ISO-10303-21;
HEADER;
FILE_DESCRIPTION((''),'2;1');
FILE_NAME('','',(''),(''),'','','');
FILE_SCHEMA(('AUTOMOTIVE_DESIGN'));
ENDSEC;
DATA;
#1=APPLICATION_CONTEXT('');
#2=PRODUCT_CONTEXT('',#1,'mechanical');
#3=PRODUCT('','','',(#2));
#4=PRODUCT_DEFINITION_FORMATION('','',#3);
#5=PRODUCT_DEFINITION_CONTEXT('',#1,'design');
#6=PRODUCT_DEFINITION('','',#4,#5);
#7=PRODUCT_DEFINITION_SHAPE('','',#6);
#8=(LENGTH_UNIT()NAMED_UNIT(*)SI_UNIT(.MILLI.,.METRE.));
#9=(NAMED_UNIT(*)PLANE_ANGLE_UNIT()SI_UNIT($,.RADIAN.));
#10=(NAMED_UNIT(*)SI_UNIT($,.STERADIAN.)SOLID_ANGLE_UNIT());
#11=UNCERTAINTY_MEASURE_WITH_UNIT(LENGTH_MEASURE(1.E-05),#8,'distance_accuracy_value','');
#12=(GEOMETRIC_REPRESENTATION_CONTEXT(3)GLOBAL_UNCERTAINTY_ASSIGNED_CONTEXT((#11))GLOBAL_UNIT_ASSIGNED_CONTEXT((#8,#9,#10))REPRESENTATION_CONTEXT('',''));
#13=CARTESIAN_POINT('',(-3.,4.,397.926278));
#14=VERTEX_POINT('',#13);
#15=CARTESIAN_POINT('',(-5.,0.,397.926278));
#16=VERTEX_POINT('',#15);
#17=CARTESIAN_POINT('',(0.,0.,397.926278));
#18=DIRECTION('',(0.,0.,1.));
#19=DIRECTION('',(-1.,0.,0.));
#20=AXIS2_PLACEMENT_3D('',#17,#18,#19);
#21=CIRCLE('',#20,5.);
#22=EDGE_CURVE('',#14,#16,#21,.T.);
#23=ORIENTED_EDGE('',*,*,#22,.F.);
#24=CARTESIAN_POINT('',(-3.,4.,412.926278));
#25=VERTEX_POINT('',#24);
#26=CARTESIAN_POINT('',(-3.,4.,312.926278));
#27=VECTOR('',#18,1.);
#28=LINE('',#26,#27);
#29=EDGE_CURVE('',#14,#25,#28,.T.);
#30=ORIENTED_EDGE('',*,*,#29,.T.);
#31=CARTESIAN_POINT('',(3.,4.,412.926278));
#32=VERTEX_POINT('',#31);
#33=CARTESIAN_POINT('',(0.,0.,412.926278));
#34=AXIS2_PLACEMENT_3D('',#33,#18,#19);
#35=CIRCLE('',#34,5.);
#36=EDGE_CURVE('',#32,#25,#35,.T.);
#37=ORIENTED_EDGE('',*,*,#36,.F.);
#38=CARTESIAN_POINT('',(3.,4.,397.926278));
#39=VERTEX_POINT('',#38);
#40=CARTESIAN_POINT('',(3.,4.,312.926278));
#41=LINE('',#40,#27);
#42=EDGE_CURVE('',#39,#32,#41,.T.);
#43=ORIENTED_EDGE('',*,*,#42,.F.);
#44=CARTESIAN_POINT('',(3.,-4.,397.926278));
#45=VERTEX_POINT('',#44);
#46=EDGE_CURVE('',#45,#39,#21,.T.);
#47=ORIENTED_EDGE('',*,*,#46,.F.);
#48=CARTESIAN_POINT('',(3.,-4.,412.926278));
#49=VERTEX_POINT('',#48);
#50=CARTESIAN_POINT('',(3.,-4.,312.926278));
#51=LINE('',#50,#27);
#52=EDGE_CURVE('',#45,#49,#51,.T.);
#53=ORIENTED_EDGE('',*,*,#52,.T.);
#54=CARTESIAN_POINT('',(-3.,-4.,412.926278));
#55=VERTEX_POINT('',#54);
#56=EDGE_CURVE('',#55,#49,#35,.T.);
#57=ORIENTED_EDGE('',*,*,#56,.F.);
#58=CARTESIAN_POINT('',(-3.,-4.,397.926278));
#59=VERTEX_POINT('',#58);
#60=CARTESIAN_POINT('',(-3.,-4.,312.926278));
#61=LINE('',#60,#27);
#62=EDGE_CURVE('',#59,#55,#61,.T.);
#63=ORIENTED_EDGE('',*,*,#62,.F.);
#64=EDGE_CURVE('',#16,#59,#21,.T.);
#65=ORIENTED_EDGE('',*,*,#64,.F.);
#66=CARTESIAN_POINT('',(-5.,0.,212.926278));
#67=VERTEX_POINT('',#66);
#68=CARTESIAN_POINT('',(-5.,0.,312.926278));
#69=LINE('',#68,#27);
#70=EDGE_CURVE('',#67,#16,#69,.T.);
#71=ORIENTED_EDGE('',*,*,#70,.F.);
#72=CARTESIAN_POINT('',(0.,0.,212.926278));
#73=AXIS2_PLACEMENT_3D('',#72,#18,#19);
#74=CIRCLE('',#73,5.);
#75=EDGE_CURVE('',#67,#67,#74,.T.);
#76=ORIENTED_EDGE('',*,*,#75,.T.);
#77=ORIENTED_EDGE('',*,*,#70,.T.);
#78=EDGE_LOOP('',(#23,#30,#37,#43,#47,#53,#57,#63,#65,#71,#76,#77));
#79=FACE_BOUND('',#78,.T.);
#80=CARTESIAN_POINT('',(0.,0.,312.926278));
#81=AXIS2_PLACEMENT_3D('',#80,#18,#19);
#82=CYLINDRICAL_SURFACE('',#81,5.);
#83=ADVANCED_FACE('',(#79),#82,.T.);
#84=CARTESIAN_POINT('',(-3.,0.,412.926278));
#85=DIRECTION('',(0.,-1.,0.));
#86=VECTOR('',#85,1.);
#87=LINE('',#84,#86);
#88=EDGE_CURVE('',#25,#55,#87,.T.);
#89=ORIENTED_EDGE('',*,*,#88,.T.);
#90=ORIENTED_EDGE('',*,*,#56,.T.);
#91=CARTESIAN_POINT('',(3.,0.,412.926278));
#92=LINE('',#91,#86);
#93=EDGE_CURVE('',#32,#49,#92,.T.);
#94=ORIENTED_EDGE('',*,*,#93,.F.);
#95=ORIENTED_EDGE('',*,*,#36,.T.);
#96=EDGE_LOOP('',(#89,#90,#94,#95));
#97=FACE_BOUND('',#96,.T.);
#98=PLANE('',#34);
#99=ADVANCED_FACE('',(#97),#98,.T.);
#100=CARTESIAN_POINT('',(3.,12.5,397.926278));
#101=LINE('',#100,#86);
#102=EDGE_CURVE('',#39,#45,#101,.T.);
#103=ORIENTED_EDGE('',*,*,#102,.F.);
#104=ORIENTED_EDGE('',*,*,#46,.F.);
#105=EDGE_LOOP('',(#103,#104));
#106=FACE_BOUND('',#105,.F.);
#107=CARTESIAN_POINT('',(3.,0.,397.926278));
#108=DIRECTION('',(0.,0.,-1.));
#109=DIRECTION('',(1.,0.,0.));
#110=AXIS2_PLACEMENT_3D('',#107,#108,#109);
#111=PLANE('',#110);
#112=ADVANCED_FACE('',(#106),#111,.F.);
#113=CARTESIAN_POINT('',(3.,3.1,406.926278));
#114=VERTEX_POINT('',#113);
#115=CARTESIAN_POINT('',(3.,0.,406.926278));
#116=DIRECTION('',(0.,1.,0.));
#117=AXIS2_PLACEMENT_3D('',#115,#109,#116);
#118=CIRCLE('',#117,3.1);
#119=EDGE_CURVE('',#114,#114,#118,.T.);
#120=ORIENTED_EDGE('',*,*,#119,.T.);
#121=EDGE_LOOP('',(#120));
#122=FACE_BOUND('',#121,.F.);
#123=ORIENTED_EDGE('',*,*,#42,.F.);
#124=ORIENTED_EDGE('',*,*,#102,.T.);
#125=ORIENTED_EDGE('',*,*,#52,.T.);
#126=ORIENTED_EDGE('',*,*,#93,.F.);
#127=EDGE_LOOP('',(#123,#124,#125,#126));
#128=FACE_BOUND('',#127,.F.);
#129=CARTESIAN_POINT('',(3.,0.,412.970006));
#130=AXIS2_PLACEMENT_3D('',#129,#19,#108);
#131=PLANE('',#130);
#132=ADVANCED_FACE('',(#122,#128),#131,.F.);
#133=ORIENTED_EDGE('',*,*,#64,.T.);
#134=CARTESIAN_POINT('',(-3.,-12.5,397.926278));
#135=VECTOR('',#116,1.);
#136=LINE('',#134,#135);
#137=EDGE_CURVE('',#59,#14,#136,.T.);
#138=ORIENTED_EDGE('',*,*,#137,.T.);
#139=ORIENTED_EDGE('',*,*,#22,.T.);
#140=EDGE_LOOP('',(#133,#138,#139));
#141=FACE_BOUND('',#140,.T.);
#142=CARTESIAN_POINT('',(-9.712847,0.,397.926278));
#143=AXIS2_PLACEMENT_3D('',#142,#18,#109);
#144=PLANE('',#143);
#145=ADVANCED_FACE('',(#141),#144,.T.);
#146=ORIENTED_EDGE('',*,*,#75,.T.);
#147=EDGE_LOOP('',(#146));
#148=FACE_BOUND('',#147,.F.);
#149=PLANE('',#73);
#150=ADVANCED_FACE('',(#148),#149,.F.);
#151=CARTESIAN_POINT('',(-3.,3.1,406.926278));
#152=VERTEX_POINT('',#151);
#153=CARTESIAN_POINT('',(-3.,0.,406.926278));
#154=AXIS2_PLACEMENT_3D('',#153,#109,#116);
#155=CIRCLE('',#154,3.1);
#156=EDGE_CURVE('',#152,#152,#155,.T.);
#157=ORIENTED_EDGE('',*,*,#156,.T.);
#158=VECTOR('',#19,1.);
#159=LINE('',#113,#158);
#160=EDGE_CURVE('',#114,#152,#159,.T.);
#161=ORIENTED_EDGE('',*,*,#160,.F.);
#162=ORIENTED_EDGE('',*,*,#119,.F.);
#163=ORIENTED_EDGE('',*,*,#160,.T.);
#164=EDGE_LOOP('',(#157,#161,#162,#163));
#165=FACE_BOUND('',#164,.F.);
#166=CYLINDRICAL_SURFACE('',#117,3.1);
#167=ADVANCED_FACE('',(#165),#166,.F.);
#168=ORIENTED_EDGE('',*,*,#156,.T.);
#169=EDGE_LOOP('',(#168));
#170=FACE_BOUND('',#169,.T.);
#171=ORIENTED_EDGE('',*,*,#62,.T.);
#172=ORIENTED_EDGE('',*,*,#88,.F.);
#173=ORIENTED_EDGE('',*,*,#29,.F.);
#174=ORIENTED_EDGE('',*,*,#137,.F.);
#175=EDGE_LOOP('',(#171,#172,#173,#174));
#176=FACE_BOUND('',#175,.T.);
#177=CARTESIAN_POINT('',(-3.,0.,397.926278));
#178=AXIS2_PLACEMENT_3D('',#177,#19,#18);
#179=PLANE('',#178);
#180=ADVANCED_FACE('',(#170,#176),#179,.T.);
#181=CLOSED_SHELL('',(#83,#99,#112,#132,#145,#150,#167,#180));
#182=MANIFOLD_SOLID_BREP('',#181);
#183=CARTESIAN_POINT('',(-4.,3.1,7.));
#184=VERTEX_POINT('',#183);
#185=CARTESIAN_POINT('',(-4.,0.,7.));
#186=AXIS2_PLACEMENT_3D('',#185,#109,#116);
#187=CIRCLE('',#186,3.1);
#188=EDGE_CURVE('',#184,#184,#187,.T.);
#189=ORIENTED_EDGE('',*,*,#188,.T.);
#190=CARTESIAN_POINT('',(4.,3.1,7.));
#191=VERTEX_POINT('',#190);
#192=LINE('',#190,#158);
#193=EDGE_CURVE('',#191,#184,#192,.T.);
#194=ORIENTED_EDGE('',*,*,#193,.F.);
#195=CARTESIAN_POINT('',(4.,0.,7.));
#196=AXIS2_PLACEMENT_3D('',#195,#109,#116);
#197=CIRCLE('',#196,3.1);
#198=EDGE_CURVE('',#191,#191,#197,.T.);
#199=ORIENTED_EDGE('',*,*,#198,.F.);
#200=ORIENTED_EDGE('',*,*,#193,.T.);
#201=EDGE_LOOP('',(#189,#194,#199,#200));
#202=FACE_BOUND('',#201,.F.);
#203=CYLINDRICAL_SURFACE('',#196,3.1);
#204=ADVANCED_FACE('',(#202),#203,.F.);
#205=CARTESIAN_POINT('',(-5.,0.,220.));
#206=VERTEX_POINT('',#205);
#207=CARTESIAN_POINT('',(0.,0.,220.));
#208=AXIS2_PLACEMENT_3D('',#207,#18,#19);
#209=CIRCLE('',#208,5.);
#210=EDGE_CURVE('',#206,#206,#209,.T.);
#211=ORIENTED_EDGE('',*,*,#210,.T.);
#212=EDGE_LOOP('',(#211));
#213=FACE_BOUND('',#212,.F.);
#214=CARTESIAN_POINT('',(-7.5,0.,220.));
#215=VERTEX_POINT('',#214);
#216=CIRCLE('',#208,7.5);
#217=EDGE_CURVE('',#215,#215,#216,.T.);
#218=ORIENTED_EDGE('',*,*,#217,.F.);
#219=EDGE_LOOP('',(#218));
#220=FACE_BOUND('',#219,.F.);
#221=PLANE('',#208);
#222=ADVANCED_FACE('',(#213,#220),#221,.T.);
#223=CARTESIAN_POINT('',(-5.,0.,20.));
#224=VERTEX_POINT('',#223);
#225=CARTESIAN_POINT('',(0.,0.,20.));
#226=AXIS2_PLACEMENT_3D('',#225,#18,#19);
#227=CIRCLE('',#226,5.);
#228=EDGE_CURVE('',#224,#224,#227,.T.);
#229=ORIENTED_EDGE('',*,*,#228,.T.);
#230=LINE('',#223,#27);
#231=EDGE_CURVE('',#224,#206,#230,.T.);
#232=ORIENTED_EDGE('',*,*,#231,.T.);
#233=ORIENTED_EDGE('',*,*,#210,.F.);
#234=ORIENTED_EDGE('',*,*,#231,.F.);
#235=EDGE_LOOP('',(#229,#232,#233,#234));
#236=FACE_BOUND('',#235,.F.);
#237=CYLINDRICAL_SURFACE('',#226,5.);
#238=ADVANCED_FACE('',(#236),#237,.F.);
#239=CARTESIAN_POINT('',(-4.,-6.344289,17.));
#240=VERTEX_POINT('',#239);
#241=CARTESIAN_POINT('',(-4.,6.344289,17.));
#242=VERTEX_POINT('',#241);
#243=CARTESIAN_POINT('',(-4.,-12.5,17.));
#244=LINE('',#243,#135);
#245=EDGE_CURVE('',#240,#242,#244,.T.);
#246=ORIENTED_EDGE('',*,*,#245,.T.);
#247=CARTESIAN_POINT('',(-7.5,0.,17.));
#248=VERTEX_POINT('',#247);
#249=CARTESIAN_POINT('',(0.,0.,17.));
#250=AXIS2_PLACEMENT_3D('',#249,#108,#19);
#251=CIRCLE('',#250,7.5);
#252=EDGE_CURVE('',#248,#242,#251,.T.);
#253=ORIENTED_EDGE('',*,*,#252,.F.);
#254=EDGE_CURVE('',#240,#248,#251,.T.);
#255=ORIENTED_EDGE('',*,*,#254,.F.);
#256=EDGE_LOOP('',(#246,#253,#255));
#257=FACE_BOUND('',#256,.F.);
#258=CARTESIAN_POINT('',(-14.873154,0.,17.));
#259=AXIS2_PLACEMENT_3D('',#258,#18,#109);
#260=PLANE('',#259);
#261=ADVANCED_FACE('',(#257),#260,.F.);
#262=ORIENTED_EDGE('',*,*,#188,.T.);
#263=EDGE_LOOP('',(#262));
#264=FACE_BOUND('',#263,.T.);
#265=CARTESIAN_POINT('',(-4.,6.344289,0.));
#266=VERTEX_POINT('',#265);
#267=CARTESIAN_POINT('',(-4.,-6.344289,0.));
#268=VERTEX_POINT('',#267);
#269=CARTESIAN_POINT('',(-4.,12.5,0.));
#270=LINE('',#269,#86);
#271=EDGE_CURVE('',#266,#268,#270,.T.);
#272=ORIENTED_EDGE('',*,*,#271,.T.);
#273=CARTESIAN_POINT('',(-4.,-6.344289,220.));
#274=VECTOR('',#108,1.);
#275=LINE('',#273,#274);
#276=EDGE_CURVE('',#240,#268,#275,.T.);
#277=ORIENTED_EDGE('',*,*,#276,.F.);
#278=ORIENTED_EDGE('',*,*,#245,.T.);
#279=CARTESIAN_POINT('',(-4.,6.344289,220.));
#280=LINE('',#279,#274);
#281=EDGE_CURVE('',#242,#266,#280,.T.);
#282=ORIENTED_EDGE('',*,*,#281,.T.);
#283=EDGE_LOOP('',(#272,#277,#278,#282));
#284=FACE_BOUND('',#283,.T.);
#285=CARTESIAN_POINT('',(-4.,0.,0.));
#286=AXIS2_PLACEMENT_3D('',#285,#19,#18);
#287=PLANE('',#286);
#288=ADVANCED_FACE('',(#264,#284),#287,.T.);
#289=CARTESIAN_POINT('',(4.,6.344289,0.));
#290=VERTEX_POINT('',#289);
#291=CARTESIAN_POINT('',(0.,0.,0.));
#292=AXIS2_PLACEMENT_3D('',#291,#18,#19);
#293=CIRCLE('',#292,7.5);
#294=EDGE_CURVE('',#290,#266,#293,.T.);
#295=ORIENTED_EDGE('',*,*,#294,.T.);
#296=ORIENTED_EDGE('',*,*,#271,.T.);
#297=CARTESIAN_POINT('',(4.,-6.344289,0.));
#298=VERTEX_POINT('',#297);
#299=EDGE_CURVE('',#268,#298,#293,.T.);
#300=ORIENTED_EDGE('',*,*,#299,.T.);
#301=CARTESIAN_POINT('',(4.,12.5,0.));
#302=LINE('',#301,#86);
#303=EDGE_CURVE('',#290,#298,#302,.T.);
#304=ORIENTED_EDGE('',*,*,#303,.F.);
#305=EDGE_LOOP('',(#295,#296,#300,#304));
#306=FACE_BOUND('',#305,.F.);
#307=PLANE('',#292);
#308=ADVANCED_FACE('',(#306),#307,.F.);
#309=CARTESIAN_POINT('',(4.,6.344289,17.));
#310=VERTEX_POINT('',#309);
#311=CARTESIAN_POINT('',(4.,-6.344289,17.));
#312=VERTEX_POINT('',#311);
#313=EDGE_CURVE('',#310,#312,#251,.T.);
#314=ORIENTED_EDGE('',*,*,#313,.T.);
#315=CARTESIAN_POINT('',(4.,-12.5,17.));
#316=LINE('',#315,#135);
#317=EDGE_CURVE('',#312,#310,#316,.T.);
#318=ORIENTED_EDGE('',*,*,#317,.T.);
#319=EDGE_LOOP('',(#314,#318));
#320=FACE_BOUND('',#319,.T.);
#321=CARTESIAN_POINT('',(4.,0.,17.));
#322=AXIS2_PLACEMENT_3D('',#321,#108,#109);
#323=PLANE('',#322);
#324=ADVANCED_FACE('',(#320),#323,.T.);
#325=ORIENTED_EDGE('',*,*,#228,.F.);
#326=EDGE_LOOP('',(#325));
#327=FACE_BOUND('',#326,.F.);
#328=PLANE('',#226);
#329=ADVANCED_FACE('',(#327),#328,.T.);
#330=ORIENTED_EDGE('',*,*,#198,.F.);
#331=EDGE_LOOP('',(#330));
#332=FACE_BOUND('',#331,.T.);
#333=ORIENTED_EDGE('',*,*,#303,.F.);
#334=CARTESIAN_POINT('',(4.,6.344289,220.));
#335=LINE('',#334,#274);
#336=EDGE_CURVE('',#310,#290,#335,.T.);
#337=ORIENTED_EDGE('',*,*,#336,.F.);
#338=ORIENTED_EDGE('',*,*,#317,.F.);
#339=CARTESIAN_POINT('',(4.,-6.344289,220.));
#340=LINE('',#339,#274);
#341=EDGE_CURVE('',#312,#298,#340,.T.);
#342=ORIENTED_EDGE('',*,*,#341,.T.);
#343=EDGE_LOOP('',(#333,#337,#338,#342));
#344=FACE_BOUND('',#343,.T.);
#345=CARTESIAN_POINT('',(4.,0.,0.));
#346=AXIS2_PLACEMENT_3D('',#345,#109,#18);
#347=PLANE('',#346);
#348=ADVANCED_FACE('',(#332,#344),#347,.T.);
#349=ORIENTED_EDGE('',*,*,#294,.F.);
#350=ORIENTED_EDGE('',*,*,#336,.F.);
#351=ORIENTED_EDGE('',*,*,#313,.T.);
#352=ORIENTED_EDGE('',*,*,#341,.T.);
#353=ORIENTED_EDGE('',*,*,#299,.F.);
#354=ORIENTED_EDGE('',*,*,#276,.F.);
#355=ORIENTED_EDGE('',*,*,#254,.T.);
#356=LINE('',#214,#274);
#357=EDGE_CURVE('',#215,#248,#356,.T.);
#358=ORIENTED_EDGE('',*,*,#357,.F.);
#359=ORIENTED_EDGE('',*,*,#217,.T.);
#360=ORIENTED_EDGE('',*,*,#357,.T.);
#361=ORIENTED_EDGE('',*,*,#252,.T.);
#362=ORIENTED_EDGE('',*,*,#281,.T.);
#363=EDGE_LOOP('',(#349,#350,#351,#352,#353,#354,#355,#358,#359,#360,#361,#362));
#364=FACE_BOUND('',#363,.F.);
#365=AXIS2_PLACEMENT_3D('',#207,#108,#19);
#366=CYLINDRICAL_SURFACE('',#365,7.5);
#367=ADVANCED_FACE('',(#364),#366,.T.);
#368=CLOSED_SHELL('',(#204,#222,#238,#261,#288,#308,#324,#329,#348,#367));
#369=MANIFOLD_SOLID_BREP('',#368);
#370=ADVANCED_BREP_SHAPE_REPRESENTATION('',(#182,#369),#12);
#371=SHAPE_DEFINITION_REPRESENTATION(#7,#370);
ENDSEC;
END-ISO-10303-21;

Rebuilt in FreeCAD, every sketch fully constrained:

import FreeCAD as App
import Part
import Sketcher
from FreeCAD import Vector
Q = App.Units.Quantity


def add_polygon(sketch, points):
    """Adds a closed chain of lines whose ends are joined by coincident constraints."""
    first, n = sketch.GeometryCount, len(points)
    for a, b in zip(points, points[1:] + points[:1]):
        sketch.addGeometry(Part.LineSegment(App.Vector(*a, 0), App.Vector(*b, 0)), False)
    for i in range(n):
        sketch.addConstraint(Sketcher.Constraint("Coincident", first + i, 2, first + (i + 1) % n, 1))

doc = App.newDocument("Part")
params = doc.addObject("Spreadsheet::Sheet", "Params")
for row, (alias, value) in enumerate([
    ("sketch1_width", "5 mm"),
    ("sketch1_height", "20 mm"),
    ("sketch1_height2", "200 mm"),
    ("sketch1_width2", "7.5 mm"),
    ("revolution_angle", "360 deg"),
    ("sketch2_height", "17 mm"),
    ("pocket1_length", "25 mm"),
    ("sketch3_diameter", "6.2 mm"),
    ("sketch4_width", "5 mm"),
    ("sketch4_height", "200 mm"),
    ("revolution2_angle", "360 deg"),
    ("sketch5_height", "15 mm"),
    ("pocket3_length", "25 mm"),
    ("sketch6_diameter", "6.2 mm"),
], start=1):
    params.set(f"A{row}", alias)
    params.set(f"B{row}", "=" + value)
    params.setAlias(f"B{row}", alias)

body = doc.addObject("PartDesign::Body", "Body")

sketch1 = body.newObject("Sketcher::SketchObject", "Sketch")
sketch1.AttachmentSupport = (doc.getObject("XZ_Plane"), [""])
sketch1.MapMode = "FlatFace"
add_polygon(sketch1, [(-7.5, 0), (0, 0), (0, 20), (-5, 20), (-5, 220), (-7.5, 220)])
sketch1.addConstraint(Sketcher.Constraint("Horizontal", 0))
sketch1.addConstraint(Sketcher.Constraint("Vertical", 1))
sketch1.addConstraint(Sketcher.Constraint("Horizontal", 2))
sketch1.addConstraint(Sketcher.Constraint("Vertical", 3))
sketch1.addConstraint(Sketcher.Constraint("Horizontal", 4))
sketch1.addConstraint(Sketcher.Constraint("Vertical", 5))
sketch1.addConstraint(Sketcher.Constraint("Coincident", 0, 2, -1, 1))
sketch1.addConstraint(Sketcher.Constraint("DistanceX", 2, 2, 2, 1, Q("5 mm")))
sketch1.addConstraint(Sketcher.Constraint("DistanceY", 1, 1, 1, 2, Q("20 mm")))
sketch1.addConstraint(Sketcher.Constraint("DistanceY", 3, 1, 3, 2, Q("200 mm")))
sketch1.addConstraint(Sketcher.Constraint("DistanceX", 0, 1, 0, 2, Q("7.5 mm")))
sketch1.setExpression("Constraints[13]", "Params.sketch1_width")
sketch1.setExpression("Constraints[14]", "Params.sketch1_height")
sketch1.setExpression("Constraints[15]", "Params.sketch1_height2")
sketch1.setExpression("Constraints[16]", "Params.sketch1_width2")
revolution = body.newObject("PartDesign::Revolution", "Revolution")
revolution.Profile = sketch1
revolution.ReferenceAxis = (sketch1, ["V_Axis"])
revolution.setExpression("Angle", "Params.revolution_angle")

sketch2 = body.newObject("Sketcher::SketchObject", "Sketch001")
sketch2.AttachmentSupport = (doc.getObject("XZ_Plane"), [""])
sketch2.MapMode = "FlatFace"
add_polygon(sketch2, [(-14.873154, 17), (-14.873154, 0), (-4, 0), (-4, 17)])
add_polygon(sketch2, [(4, 17), (4, 0), (14.873154, 0), (14.873154, 17)])
sketch2.addConstraint(Sketcher.Constraint("Vertical", 0))
sketch2.addConstraint(Sketcher.Constraint("Horizontal", 1))
sketch2.addConstraint(Sketcher.Constraint("Vertical", 2))
sketch2.addConstraint(Sketcher.Constraint("Horizontal", 3))
sketch2.addConstraint(Sketcher.Constraint("Vertical", 4))
sketch2.addConstraint(Sketcher.Constraint("Horizontal", 5))
sketch2.addConstraint(Sketcher.Constraint("Vertical", 6))
sketch2.addConstraint(Sketcher.Constraint("Horizontal", 7))
sketch2.addConstraint(Sketcher.Constraint("Symmetric", 1, 2, 4, 2, -1, 1))
sketch2.addConstraint(Sketcher.Constraint("Symmetric", 0, 2, 5, 2, -2))
sketch2.addConstraint(Sketcher.Constraint("Horizontal", 3, 2, 6, 2))
sketch2.addConstraint(Sketcher.Constraint("DistanceY", 0, 2, 0, 1, Q("17 mm")))
sketch2.addConstraint(Sketcher.Constraint("DistanceX", 1, 2, -1, 1, Q("4 mm")))
sketch2.addConstraint(Sketcher.Constraint("DistanceX", 1, 1, 1, 2, Q("10.873154 mm")))
sketch2.setExpression("Constraints[19]", "Params.sketch2_height")
pocket1 = body.newObject("PartDesign::Pocket", "Pocket")
pocket1.Profile = sketch2
pocket1.setExpression("Length", "Params.pocket1_length")
pocket1.Midplane = True

sketch3 = body.newObject("Sketcher::SketchObject", "Sketch002")
sketch3.AttachmentSupport = (doc.getObject("YZ_Plane"), [""])
sketch3.MapMode = "FlatFace"
sketch3.AttachmentOffset = App.Placement(Vector(0, 0, 4), App.Rotation())
sketch3.addGeometry(Part.Circle(Vector(0, 7, 0), Vector(0, 0, 1), 3.1), False)
sketch3.addConstraint(Sketcher.Constraint("PointOnObject", 0, 3, -2))
sketch3.addConstraint(Sketcher.Constraint("Diameter", 0, Q("6.2 mm")))
sketch3.addConstraint(Sketcher.Constraint("DistanceY", -1, 1, 0, 3, Q("7 mm")))
sketch3.setExpression("Constraints[1]", "Params.sketch3_diameter")
pocket2 = body.newObject("PartDesign::Pocket", "Pocket001")
pocket2.Profile = sketch3
pocket2.Type = "ThroughAll"
body2 = doc.addObject("PartDesign::Body", "Body001")

sketch4 = body2.newObject("Sketcher::SketchObject", "Sketch003")
sketch4.AttachmentSupport = (doc.getObject("XZ_Plane001"), [""])
sketch4.MapMode = "FlatFace"
add_polygon(sketch4, [(-5, 412.926278), (-5, 212.926278), (0, 212.926278), (0, 412.926278)])
sketch4.addConstraint(Sketcher.Constraint("Vertical", 0))
sketch4.addConstraint(Sketcher.Constraint("Horizontal", 1))
sketch4.addConstraint(Sketcher.Constraint("Vertical", 2))
sketch4.addConstraint(Sketcher.Constraint("Horizontal", 3))
sketch4.addConstraint(Sketcher.Constraint("PointOnObject", 1, 2, -2))
sketch4.addConstraint(Sketcher.Constraint("DistanceX", 1, 1, 1, 2, Q("5 mm")))
sketch4.addConstraint(Sketcher.Constraint("DistanceY", 0, 2, 0, 1, Q("200 mm")))
sketch4.addConstraint(Sketcher.Constraint("DistanceY", -1, 1, 0, 2, Q("212.926278 mm")))
sketch4.setExpression("Constraints[9]", "Params.sketch4_width")
sketch4.setExpression("Constraints[10]", "Params.sketch4_height")
revolution2 = body2.newObject("PartDesign::Revolution", "Revolution001")
revolution2.Profile = sketch4
revolution2.ReferenceAxis = (sketch4, ["V_Axis"])
revolution2.setExpression("Angle", "Params.revolution2_angle")

sketch5 = body2.newObject("Sketcher::SketchObject", "Sketch004")
sketch5.AttachmentSupport = (doc.getObject("XZ_Plane001"), [""])
sketch5.MapMode = "FlatFace"
add_polygon(sketch5, [(-3, 412.970006), (-9.712847, 412.926278), (-9.712847, 397.926278), (-3, 397.926278)])
add_polygon(sketch5, [(3, 412.970006), (3, 397.926278), (9.712847, 397.926278), (9.712847, 412.926278)])
sketch5.addConstraint(Sketcher.Constraint("Vertical", 1))
sketch5.addConstraint(Sketcher.Constraint("Horizontal", 2))
sketch5.addConstraint(Sketcher.Constraint("Vertical", 3))
sketch5.addConstraint(Sketcher.Constraint("Vertical", 4))
sketch5.addConstraint(Sketcher.Constraint("Horizontal", 5))
sketch5.addConstraint(Sketcher.Constraint("Vertical", 6))
sketch5.addConstraint(Sketcher.Constraint("Symmetric", 2, 2, 4, 2, -2))
sketch5.addConstraint(Sketcher.Constraint("Symmetric", 0, 2, 6, 2, -2))
sketch5.addConstraint(Sketcher.Constraint("Horizontal", 3, 2, 7, 2))
sketch5.addConstraint(Sketcher.Constraint("DistanceY", 1, 2, 1, 1, Q("15 mm")))
sketch5.addConstraint(Sketcher.Constraint("DistanceX", 2, 2, -1, 1, Q("3 mm")))
sketch5.addConstraint(Sketcher.Constraint("Distance", 0, Q("6.712989 mm")))
sketch5.addConstraint(Sketcher.Constraint("DistanceX", 2, 1, 2, 2, Q("6.712847 mm")))
sketch5.addConstraint(Sketcher.Constraint("DistanceY", -1, 1, 0, 2, Q("412.926278 mm")))
sketch5.setExpression("Constraints[17]", "Params.sketch5_height")
pocket3 = body2.newObject("PartDesign::Pocket", "Pocket002")
pocket3.Profile = sketch5
pocket3.setExpression("Length", "Params.pocket3_length")
pocket3.Midplane = True

sketch6 = body2.newObject("Sketcher::SketchObject", "Sketch005")
sketch6.AttachmentSupport = (doc.getObject("YZ_Plane001"), [""])
sketch6.MapMode = "FlatFace"
sketch6.AttachmentOffset = App.Placement(Vector(0, 0, 3), App.Rotation())
sketch6.addGeometry(Part.Circle(Vector(0, 406.926278, 0), Vector(0, 0, 1), 3.1), False)
sketch6.addConstraint(Sketcher.Constraint("PointOnObject", 0, 3, -2))
sketch6.addConstraint(Sketcher.Constraint("Diameter", 0, Q("6.2 mm")))
sketch6.addConstraint(Sketcher.Constraint("DistanceY", -1, 1, 0, 3, Q("406.926278 mm")))
sketch6.setExpression("Constraints[1]", "Params.sketch6_diameter")
pocket4 = body2.newObject("PartDesign::Pocket", "Pocket003")
pocket4.Profile = sketch6
pocket4.Type = "ThroughAll"

doc.recompute()
